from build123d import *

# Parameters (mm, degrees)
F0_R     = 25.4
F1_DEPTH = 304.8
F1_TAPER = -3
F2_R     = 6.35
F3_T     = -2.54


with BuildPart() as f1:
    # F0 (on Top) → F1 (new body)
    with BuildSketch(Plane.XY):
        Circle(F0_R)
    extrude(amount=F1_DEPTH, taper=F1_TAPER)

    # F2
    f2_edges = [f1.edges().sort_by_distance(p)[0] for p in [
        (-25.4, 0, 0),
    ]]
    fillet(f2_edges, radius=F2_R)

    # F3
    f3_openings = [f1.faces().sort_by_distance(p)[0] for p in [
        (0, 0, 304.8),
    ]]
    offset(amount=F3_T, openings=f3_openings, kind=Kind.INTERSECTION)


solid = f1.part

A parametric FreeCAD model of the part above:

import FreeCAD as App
import Part
import Sketcher
Q = App.Units.Quantity


def edges_at(feature, points):
    """Names of the edges that pass closest to the given points."""
    edges = feature.Shape.Edges
    near = lambda p: min(range(len(edges)), key=lambda i: edges[i].distToShape(Part.Vertex(*p))[0])
    return sorted({f"Edge{near(p) + 1}" for p in points})


def faces_at(feature, points):
    """Names of the faces that lie closest to the given points."""
    faces = feature.Shape.Faces
    near = lambda p: min(range(len(faces)), key=lambda i: faces[i].distToShape(Part.Vertex(*p))[0])
    return sorted({f"Face{near(p) + 1}" for p in points})

doc = App.newDocument("Part")
body = doc.addObject("PartDesign::Body", "Body")

# Sketch on XY plane
sketch1 = body.newObject("Sketcher::SketchObject", "Sketch")
sketch1.AttachmentSupport = (doc.getObject("XY_Plane"), [""])
sketch1.MapMode = "FlatFace"
sketch1.addGeometry(Part.Circle(App.Vector(0, 0, 0), App.Vector(0, 0, 1), 25.4), False)
sketch1.addConstraint([
    Sketcher.Constraint("Coincident", 0, 3, -1, 1),
    Sketcher.Constraint("Diameter", 0, Q("2 in")),
])
pad1 = body.newObject("PartDesign::Pad", "Pad")
pad1.Profile = sketch1
pad1.Length = Q("12 in")
pad1.TaperAngle = 3
doc.recompute()

fillet = body.newObject("PartDesign::Fillet", "Fillet")
fillet.Base = (pad1, edges_at(pad1, [(-25.4, 0, 0)]))
fillet.Radius = Q("0.25 in")
doc.recompute()

thickness = body.newObject("PartDesign::Thickness", "Thickness")
thickness.Base = (fillet, faces_at(fillet, [(0, 0, 304.8)]))
thickness.Value = Q("0.1 in")
thickness.Reversed = True
thickness.Join = "Intersection"

doc.recompute()
